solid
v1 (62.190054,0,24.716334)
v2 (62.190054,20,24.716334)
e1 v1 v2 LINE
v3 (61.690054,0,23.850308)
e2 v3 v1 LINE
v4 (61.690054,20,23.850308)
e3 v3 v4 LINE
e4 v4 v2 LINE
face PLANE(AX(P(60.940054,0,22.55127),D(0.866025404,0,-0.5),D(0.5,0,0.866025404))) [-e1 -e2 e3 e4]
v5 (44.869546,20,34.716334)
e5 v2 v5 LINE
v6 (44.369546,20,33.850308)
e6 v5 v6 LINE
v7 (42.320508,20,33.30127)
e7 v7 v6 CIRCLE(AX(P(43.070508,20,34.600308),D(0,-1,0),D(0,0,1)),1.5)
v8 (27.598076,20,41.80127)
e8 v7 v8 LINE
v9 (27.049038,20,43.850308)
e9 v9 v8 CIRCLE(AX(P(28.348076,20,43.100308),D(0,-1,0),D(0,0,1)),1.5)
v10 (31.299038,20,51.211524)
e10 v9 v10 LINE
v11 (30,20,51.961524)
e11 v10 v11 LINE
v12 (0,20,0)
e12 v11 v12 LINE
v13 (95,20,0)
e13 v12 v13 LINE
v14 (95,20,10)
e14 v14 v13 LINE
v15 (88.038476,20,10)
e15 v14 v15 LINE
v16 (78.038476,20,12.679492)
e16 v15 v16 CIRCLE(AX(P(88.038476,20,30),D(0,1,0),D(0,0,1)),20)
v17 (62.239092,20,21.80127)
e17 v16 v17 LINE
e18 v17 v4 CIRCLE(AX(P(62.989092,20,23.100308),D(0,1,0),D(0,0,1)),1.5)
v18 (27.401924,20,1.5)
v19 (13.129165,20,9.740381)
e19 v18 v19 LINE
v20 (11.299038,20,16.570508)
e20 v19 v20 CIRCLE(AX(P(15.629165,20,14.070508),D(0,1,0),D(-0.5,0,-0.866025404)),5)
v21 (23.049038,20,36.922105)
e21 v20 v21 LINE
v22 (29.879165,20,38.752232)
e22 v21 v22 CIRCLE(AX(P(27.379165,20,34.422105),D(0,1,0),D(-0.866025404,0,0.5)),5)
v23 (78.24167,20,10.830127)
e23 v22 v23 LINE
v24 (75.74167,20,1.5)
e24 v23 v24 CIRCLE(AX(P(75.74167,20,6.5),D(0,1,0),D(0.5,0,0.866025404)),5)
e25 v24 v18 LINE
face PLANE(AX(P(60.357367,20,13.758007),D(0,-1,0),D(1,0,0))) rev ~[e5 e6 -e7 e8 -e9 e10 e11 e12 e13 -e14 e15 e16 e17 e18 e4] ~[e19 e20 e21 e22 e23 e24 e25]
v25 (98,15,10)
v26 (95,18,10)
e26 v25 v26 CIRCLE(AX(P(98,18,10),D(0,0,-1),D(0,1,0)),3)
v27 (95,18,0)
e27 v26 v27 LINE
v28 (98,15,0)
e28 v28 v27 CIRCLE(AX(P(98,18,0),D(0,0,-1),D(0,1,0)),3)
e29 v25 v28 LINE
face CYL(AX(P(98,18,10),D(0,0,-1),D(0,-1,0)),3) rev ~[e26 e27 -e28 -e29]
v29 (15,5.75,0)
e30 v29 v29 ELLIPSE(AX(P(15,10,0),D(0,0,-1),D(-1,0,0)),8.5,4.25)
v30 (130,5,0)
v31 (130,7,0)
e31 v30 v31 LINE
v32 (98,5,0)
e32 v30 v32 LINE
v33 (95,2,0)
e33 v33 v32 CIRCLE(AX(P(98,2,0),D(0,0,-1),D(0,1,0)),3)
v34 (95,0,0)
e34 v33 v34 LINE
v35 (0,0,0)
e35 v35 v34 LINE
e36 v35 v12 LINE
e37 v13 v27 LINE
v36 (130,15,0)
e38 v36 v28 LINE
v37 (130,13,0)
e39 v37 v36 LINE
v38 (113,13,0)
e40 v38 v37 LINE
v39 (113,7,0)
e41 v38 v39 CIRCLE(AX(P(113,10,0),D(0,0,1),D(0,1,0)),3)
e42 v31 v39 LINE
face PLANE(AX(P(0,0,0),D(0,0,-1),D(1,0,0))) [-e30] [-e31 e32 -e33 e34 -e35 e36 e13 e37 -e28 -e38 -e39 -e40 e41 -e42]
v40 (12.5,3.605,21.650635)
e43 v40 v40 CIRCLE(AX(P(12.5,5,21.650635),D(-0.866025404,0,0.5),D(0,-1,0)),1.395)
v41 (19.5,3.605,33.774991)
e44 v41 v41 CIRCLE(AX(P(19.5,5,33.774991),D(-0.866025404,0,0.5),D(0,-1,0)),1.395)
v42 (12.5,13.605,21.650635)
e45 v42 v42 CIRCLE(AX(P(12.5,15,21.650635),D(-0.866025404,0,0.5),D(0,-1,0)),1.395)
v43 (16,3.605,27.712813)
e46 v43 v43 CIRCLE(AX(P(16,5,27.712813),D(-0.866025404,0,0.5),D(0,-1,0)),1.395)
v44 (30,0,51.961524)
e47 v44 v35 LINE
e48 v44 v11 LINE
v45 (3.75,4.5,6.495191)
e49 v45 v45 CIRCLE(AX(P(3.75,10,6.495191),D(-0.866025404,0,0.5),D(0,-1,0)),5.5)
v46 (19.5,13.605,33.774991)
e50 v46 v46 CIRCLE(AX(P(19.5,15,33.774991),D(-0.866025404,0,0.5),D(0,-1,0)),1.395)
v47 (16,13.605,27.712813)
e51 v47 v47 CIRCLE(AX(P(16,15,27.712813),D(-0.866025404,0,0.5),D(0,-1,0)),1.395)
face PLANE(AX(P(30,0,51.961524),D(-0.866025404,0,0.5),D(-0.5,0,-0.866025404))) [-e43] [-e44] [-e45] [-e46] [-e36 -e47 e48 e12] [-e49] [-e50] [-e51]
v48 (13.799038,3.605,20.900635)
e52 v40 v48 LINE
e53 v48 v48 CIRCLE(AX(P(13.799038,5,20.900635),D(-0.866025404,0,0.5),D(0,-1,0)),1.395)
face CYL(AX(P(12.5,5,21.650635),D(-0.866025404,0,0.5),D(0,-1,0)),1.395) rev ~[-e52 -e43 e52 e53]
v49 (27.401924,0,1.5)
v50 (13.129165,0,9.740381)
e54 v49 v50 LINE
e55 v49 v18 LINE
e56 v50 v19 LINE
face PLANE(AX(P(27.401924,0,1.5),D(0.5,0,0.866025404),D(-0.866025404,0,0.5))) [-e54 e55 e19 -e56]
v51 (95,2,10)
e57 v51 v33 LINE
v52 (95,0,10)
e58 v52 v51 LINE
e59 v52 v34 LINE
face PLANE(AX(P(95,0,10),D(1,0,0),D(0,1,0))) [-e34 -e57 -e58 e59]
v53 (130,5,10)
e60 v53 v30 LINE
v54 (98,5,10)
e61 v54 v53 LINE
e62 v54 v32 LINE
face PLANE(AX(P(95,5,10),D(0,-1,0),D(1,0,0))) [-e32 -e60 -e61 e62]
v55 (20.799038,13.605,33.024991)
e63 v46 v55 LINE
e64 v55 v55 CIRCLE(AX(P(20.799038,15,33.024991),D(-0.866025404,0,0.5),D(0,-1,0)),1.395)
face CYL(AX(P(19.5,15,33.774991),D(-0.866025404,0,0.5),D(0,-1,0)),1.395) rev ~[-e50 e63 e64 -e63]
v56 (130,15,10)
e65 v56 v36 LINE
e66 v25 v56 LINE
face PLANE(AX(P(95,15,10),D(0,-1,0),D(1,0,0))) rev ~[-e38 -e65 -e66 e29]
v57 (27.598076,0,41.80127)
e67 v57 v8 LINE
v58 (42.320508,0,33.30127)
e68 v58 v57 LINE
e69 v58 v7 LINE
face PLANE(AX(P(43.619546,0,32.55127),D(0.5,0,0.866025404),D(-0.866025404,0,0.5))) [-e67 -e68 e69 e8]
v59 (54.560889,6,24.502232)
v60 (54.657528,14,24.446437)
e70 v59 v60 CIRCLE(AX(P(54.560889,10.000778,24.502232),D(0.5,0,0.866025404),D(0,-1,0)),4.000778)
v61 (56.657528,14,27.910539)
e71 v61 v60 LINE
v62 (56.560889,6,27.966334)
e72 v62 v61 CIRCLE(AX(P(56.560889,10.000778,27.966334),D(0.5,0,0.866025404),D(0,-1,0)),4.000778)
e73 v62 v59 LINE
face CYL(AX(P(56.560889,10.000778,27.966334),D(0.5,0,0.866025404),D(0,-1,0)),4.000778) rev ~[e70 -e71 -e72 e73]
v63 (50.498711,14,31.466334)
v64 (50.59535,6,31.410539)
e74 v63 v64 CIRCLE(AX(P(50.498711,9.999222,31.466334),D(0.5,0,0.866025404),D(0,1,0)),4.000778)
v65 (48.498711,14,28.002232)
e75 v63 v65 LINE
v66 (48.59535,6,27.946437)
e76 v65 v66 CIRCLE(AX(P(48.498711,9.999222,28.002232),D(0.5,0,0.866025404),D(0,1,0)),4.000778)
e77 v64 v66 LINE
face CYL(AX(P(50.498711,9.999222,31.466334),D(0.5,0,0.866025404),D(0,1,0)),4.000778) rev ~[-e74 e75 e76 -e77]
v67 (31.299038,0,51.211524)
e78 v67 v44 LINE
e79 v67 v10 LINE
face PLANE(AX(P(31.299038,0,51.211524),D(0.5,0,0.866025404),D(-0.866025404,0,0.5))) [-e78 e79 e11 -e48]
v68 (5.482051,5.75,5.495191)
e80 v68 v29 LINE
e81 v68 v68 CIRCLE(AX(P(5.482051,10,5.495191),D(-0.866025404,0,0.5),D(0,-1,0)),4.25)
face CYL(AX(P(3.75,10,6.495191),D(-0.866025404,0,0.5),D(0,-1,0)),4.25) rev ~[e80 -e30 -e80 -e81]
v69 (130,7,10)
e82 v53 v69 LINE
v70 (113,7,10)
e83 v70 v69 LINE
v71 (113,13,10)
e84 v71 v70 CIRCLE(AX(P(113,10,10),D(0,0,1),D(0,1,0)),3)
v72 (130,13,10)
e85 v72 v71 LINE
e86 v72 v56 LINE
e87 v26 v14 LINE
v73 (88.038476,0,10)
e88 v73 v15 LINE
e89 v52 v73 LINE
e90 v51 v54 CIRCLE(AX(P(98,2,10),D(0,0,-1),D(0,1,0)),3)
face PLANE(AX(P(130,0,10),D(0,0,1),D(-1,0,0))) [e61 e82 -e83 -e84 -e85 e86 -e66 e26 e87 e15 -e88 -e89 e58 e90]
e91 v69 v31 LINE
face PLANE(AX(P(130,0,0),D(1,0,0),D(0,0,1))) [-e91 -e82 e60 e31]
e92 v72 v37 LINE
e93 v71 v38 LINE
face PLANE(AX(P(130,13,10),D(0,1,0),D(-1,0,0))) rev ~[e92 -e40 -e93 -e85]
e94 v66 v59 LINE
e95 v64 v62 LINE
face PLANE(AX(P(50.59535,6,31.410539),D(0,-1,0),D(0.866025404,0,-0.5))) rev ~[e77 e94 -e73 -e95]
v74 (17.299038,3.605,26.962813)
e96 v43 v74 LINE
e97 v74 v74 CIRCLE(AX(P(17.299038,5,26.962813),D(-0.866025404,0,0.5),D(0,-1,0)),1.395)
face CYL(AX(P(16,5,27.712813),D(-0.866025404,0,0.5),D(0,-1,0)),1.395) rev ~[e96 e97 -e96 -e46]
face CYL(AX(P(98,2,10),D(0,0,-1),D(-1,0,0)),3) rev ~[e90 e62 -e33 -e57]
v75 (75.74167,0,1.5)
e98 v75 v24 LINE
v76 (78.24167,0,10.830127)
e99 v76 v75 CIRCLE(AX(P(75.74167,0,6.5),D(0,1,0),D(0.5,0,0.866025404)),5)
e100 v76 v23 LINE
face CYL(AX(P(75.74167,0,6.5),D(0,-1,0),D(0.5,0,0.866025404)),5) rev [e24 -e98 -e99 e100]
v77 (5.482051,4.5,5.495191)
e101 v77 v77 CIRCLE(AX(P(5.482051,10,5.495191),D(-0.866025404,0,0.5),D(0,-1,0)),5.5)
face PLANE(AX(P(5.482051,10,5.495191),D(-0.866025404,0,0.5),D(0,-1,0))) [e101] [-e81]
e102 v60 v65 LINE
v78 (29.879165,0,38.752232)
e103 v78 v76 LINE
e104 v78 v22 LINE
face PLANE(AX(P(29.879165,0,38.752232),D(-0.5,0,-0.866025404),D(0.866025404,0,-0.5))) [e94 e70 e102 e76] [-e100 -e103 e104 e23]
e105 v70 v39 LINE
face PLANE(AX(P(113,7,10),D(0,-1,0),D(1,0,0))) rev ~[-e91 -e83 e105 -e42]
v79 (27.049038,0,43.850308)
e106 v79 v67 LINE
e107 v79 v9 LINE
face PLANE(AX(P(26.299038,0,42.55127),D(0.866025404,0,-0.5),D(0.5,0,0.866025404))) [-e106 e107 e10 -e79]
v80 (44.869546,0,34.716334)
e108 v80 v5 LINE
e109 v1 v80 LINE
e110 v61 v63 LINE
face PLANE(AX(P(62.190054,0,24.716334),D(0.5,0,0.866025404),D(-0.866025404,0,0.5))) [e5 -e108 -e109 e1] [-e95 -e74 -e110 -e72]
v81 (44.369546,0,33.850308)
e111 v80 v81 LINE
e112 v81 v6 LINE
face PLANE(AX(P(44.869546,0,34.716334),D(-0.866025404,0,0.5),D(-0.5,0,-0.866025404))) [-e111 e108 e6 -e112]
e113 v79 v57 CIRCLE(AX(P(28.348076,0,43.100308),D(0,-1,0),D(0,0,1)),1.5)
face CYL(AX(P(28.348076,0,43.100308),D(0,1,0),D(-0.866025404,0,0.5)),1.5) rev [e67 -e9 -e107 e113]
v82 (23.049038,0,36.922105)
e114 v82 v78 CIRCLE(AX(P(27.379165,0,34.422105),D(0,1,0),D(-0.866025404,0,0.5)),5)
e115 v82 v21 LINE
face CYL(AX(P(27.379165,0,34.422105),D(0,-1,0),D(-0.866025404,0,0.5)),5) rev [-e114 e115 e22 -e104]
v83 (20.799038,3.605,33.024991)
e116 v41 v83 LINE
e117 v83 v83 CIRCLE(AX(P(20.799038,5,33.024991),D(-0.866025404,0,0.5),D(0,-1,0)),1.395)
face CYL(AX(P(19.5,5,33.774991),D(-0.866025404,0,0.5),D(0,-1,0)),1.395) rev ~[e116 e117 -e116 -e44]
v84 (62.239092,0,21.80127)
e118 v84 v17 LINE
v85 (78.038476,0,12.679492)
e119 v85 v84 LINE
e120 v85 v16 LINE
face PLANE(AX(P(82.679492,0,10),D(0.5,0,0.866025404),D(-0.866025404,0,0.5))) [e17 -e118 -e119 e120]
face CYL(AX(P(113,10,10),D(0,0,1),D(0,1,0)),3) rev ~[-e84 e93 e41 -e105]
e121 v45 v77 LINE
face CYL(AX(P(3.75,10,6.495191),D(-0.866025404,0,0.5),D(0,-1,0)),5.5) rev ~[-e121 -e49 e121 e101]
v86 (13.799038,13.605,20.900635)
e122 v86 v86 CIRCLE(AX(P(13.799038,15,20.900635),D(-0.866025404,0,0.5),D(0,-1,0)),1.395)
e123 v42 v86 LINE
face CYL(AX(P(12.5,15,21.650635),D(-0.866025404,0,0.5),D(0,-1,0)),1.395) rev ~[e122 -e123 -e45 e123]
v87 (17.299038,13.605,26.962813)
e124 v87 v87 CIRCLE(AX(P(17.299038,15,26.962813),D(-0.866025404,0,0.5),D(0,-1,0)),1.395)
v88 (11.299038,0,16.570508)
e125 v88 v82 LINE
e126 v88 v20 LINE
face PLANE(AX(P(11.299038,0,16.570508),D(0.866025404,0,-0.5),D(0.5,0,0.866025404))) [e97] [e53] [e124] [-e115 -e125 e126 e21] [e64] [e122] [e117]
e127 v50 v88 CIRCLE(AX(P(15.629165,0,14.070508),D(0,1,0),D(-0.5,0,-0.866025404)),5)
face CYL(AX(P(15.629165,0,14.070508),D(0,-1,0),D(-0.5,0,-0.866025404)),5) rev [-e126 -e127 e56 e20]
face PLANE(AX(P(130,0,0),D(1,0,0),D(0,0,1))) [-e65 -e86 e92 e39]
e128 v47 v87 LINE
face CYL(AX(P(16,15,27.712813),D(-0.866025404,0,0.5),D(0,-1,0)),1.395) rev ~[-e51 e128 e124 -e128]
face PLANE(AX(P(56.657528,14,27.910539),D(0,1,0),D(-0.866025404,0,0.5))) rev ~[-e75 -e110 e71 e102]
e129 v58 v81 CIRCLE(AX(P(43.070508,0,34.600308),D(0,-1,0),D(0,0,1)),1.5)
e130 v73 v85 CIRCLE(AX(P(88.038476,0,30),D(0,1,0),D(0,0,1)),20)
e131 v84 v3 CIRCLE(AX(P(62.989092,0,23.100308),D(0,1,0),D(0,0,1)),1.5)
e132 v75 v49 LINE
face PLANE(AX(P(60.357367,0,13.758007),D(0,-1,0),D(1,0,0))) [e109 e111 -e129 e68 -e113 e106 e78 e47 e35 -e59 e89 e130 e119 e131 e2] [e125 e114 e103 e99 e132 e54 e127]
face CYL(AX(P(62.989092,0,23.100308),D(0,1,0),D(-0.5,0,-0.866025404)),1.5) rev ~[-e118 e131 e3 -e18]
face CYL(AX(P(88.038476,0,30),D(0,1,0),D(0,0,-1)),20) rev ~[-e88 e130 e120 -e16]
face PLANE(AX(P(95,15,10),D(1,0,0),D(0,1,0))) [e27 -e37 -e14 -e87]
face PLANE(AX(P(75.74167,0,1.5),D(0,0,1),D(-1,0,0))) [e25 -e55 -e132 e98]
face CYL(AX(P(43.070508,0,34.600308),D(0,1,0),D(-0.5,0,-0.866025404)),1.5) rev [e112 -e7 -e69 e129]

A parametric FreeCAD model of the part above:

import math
import FreeCAD as App
import Part
import Sketcher
from FreeCAD import Vector
Q = App.Units.Quantity


def edges_at(feature, points):
    """Names of the edges that pass closest to the given points."""
    edges = feature.Shape.Edges
    near = lambda p: min(range(len(edges)), key=lambda i: edges[i].distToShape(Part.Vertex(*p))[0])
    return sorted({f"Edge{near(p) + 1}" for p in points})


def add_polygon(sketch, points):
    """Adds a closed chain of lines whose ends are joined by coincident constraints."""
    first, n = sketch.GeometryCount, len(points)
    for a, b in zip(points, points[1:] + points[:1]):
        sketch.addGeometry(Part.LineSegment(App.Vector(*a, 0), App.Vector(*b, 0)), False)
    for i in range(n):
        sketch.addConstraint(Sketcher.Constraint("Coincident", first + i, 2, first + (i + 1) % n, 1))

doc = App.newDocument("Part")
body = doc.addObject("PartDesign::Body", "Body")

# Sketch on XZ plane
sketch1 = doc.addObject("Sketcher::SketchObject", "Sketch")
body.addObject(sketch1)
sketch1.AttachmentSupport = (doc.XZ_Plane, [""])
sketch1.MapMode = "FlatFace"
add_polygon(sketch1, [(30, 52), (0, 0), (130, 0), (130, 10), (82.7, 10), (60.9, 22.6), (62.2, 24.7), (44.9, 34.7), (43.6, 32.6), (26.3, 42.6), (31.3, 51.2)])  # lines 0-10
sketch1.addGeometry(Part.ArcOfCircle(Part.Circle(Vector(75.7, 6.5, 0), Vector(0, 0, 1), 5), math.radians(-90), math.radians(60)), False)  # 11
sketch1.addGeometry(Part.LineSegment(Vector(75.7, 1.5, 0), Vector(27.4, 1.5, 0)), False)  # 12
sketch1.addGeometry(Part.LineSegment(Vector(27.4, 1.5, 0), Vector(13.1, 9.7, 0)), False)  # 13
sketch1.addGeometry(Part.ArcOfCircle(Part.Circle(Vector(15.6, 14.1, 0), Vector(0, 0, 1), 5), math.radians(150), math.radians(240)), False)  # 14
sketch1.addGeometry(Part.LineSegment(Vector(11.3, 16.6, 0), Vector(23, 36.9, 0)), False)  # 15
sketch1.addGeometry(Part.ArcOfCircle(Part.Circle(Vector(27.4, 34.4, 0), Vector(0, 0, 1), 5), math.radians(60), math.radians(150)), False)  # 16
sketch1.addGeometry(Part.LineSegment(Vector(29.9, 38.8, 0), Vector(78.2, 10.8, 0)), False)  # 17
sketch1.addConstraint([
    Sketcher.Constraint("Tangent", 11, 1, 12, 1),
    Sketcher.Constraint("Coincident", 12, 2, 13, 1),
    Sketcher.Constraint("Tangent", 13, 2, 14, 2),
    Sketcher.Constraint("Tangent", 14, 1, 15, 1),
    Sketcher.Constraint("Tangent", 15, 2, 16, 2),
    Sketcher.Constraint("Tangent", 16, 1, 17, 1),
    Sketcher.Constraint("Tangent", 17, 2, 11, 2),
    Sketcher.Constraint("Horizontal", 1),
    Sketcher.Constraint("Vertical", 2),
    Sketcher.Constraint("Horizontal", 3),
    Sketcher.Constraint("Horizontal", 12),
    Sketcher.Constraint("Coincident", 0, 2, -1, 1),
    Sketcher.Constraint("Equal", 11, 14),
    Sketcher.Constraint("Equal", 14, 16),
    Sketcher.Constraint("Perpendicular", 0, 4),
    Sketcher.Constraint("Perpendicular", 4, 5),
    Sketcher.Constraint("Perpendicular", 5, 6),
    Sketcher.Constraint("Perpendicular", 6, 7),
    Sketcher.Constraint("Perpendicular", 7, 8),
    Sketcher.Constraint("Perpendicular", 8, 9),
    Sketcher.Constraint("Perpendicular", 9, 10),
    Sketcher.Constraint("Parallel", 10, 13),
    Sketcher.Constraint("Perpendicular", 13, 15),
    Sketcher.Constraint("Perpendicular", 15, 17),
    Sketcher.Constraint("Equal", 5, 7),
    Sketcher.Constraint("Equal", 6, 8),
    Sketcher.Constraint("Radius", 11, 5.0),
    Sketcher.Constraint("DistanceX", 1, 1, 1, 2, 130.0),
    Sketcher.Constraint("DistanceY", 2, 1, 2, 2, 10.0),
    Sketcher.Constraint("Angle", 0, Q("-120 deg")),
    Sketcher.Constraint("Distance", 0, 60.0),
    Sketcher.Constraint("Distance", 6, 20.0),
    Sketcher.Constraint("Distance", 9, 10.0),
    Sketcher.Constraint("Distance", 5, 2.5),
    Sketcher.Constraint("Distance", 10, 1.5),
    Sketcher.Constraint("Distance", 15, 23.5),
    Sketcher.Constraint("DistanceY", -1, 1, 11, 3, 6.5),
    Sketcher.Constraint("DistanceX", 15, 2, 8, 2, 3.25),
    Sketcher.Constraint("Distance", 17, 55.84421),
])
pad1 = doc.addObject("PartDesign::Pad", "Pad")
body.addObject(pad1)
pad1.Profile = sketch1
pad1.Length = 20
pad1.Reversed = True
doc.recompute()

fillet = doc.addObject("PartDesign::Fillet", "Fillet")
body.addObject(fillet)
fillet.Base = (pad1, edges_at(pad1, [(60.94, 10, 22.551), (43.62, 10, 32.551), (26.299, 10, 42.551)]))
fillet.Radius = 1.5
doc.recompute()

fillet2 = doc.addObject("PartDesign::Fillet", "Fillet001")
body.addObject(fillet2)
fillet2.Base = (fillet, edges_at(fillet, [(82.679, 10, 10)]))
fillet2.Radius = 20

# Sketch on XY plane
sketch2 = doc.addObject("Sketcher::SketchObject", "Sketch001")
body.addObject(sketch2)
sketch2.AttachmentSupport = (doc.XY_Plane, [""])
sketch2.MapMode = "FlatFace"
sketch2.AttachmentOffset = App.Placement(Vector(0, 0, 10), App.Rotation())
add_polygon(sketch2, [(95, 5), (95, 0), (130, 0), (130, 5)])  # lines 0-3
add_polygon(sketch2, [(95, 20), (95, 15), (130, 15), (130, 20)])  # lines 4-7
sketch2.addGeometry(Part.LineSegment(Vector(113, 7, 0), Vector(130, 7, 0)), False)  # 8
sketch2.addGeometry(Part.LineSegment(Vector(130, 7, 0), Vector(130, 13, 0)), False)  # 9
sketch2.addGeometry(Part.LineSegment(Vector(130, 13, 0), Vector(113, 13, 0)), False)  # 10
sketch2.addGeometry(Part.ArcOfCircle(Part.Circle(Vector(113, 10, 0), Vector(0, 0, 1), 3), math.radians(90), math.radians(270)), False)  # 11
sketch2.addConstraint([
    Sketcher.Constraint("Coincident", 8, 2, 9, 1),
    Sketcher.Constraint("Coincident", 9, 2, 10, 1),
    Sketcher.Constraint("Tangent", 10, 2, 11, 1),
    Sketcher.Constraint("Tangent", 11, 2, 8, 1),
    Sketcher.Constraint("Vertical", 0),
    Sketcher.Constraint("Horizontal", 1),
    Sketcher.Constraint("Vertical", 2),
    Sketcher.Constraint("Horizontal", 3),
    Sketcher.Constraint("Vertical", 4),
    Sketcher.Constraint("Horizontal", 5),
    Sketcher.Constraint("Vertical", 6),
    Sketcher.Constraint("Horizontal", 7),
    Sketcher.Constraint("Horizontal", 8),
    Sketcher.Constraint("Vertical", 9),
    Sketcher.Constraint("Horizontal", 10),
    Sketcher.Constraint("PointOnObject", 0, 2, -1),
    Sketcher.Constraint("Vertical", 3, 2, 4, 2),
    Sketcher.Constraint("Vertical", 2, 2, 5, 2),
    Sketcher.Constraint("Vertical", 6, 2, 8, 2),
    Sketcher.Constraint("Equal", 2, 4),
    Sketcher.Constraint("Radius", 11, 3.0),
    Sketcher.Constraint("DistanceX", 1, 1, 1, 2, 35.0),
    Sketcher.Constraint("DistanceX", 8, 1, 8, 2, 17.0),
    Sketcher.Constraint("DistanceY", 0, 2, 0, 1, 5.0),
    Sketcher.Constraint("DistanceX", -1, 1, 11, 3, 113.0),
    Sketcher.Constraint("DistanceY", -1, 1, 11, 3, 10.0),
    Sketcher.Constraint("DistanceY", -1, 1, 4, 2, 15.0),
])
pocket1 = doc.addObject("PartDesign::Pocket", "Pocket")
body.addObject(pocket1)
pocket1.Profile = sketch2
pocket1.Type = "ThroughAll"
doc.recompute()

fillet3 = doc.addObject("PartDesign::Fillet", "Fillet002")
body.addObject(fillet3)
fillet3.Base = (pocket1, edges_at(pocket1, [(95, 5, 5), (95, 15, 5)]))
fillet3.Radius = 3

# Sketch on an angled plane
sketch3 = doc.addObject("Sketcher::SketchObject", "Sketch002")
body.addObject(sketch3)
sketch3.Placement = App.Placement(Vector(26.25, 0, 45.466334), App.Rotation(Vector(0.866025404, 0, -0.5), Vector(0, 1, 0), Vector(0.5, 0, 0.866025404), "ZXY"))
sketch3.addGeometry([
    Part.ArcOfCircle(Part.Circle(Vector(35, 10, 0), Vector(0, 0, 1), 4), math.radians(-90), math.radians(88)),
    Part.LineSegment(Vector(35.1, 14, 0), Vector(28, 14, 0)),
    Part.ArcOfCircle(Part.Circle(Vector(28, 10, 0), Vector(0, 0, 1), 4), math.radians(90), math.radians(272)),
    Part.LineSegment(Vector(28.1, 6, 0), Vector(35, 6, 0)),
], False)
sketch3.addConstraint([
    Sketcher.Constraint("Coincident", 0, 2, 1, 1),
    Sketcher.Constraint("Tangent", 1, 2, 2, 1),
    Sketcher.Constraint("Coincident", 2, 2, 3, 1),
    Sketcher.Constraint("Tangent", 3, 2, 0, 1),
    Sketcher.Constraint("Horizontal", 1),
    Sketcher.Constraint("Horizontal", 3),
    Sketcher.Constraint("Equal", 0, 2),
    Sketcher.Constraint("DistanceX", -1, 1, 0, 3, 35.0),
    Sketcher.Constraint("DistanceX", -1, 1, 2, 3, 28.0),
    Sketcher.Constraint("DistanceY", -1, 1, 0, 2, 14.0),
    Sketcher.Constraint("DistanceY", -1, 1, 2, 2, 6.0),
    Sketcher.Constraint("Radius", 0, 4.000778),
])
pocket2 = doc.addObject("PartDesign::Pocket", "Pocket001")
body.addObject(pocket2)
pocket2.Profile = sketch3
pocket2.Length = 4

# Sketch on an angled plane
sketch4 = doc.addObject("Sketcher::SketchObject", "Sketch003")
body.addObject(sketch4)
sketch4.Placement = App.Placement(Vector(0, 0, 0), App.Rotation(Vector(0, -1, 0), Vector(0.5, 0, 0.866025404), Vector(-0.866025404, 0, 0.5), "ZXY"))
sketch4.addGeometry([
    Part.Circle(Vector(-10, 7.5, 0), Vector(0, 0, 1), 5.5),
    Part.Circle(Vector(-10, 7.5, 0), Vector(0, 0, 1), 4.2),
], False)
sketch4.addConstraint([
    Sketcher.Constraint("Coincident", 1, 3, 0, 3),
    Sketcher.Constraint("Diameter", 0, 11.0),
    Sketcher.Constraint("Diameter", 1, 8.5),
    Sketcher.Constraint("DistanceX", 0, 3, -1, 1, 10.0),
    Sketcher.Constraint("DistanceY", -1, 1, 0, 3, 7.5),
])
pocket3 = doc.addObject("PartDesign::Pocket", "Pocket002")
body.addObject(pocket3)
pocket3.Profile = sketch4
pocket3.Length = 2

# Sketch on an angled plane
sketch5 = doc.addObject("Sketcher::SketchObject", "Sketch004")
body.addObject(sketch5)
sketch5.Placement = App.Placement(Vector(0, 0, 0), App.Rotation(Vector(0, -1, 0), Vector(0.5, 0, 0.866025404), Vector(-0.866025404, 0, 0.5), "ZXY"))
sketch5.addGeometry([
    Part.Circle(Vector(-15, 39, 0), Vector(0, 0, 1), 1.4),  # 0
    Part.Circle(Vector(-5, 39, 0), Vector(0, 0, 1), 1.4),  # 1
    Part.Circle(Vector(-5, 32, 0), Vector(0, 0, 1), 1.4),  # 2
    Part.Circle(Vector(-5, 25, 0), Vector(0, 0, 1), 1.4),  # 3
    Part.Circle(Vector(-15, 32, 0), Vector(0, 0, 1), 1.4),  # 4
    Part.Circle(Vector(-15, 25, 0), Vector(0, 0, 1), 1.4),  # 5
], False)
sketch5.addConstraint([
    Sketcher.Constraint("Equal", 0, 1),
    Sketcher.Constraint("Equal", 1, 2),
    Sketcher.Constraint("Equal", 2, 3),
    Sketcher.Constraint("Equal", 3, 4),
    Sketcher.Constraint("Equal", 4, 5),
    Sketcher.Constraint("Horizontal", 0, 3, 1, 3),
    Sketcher.Constraint("Horizontal", 2, 3, 4, 3),
    Sketcher.Constraint("Horizontal", 3, 3, 5, 3),
    Sketcher.Constraint("Vertical", 1, 3, 2, 3),
    Sketcher.Constraint("Vertical", 2, 3, 3, 3),
    Sketcher.Constraint("Vertical", 0, 3, 4, 3),
    Sketcher.Constraint("Vertical", 4, 3, 5, 3),
    Sketcher.Constraint("Diameter", 0, 2.79),
    Sketcher.Constraint("DistanceX", 0, 3, -1, 1, 15.0),
    Sketcher.Constraint("DistanceY", -1, 1, 0, 3, 39.0),
    Sketcher.Constraint("DistanceX", 1, 3, -1, 1, 5.0),
    Sketcher.Constraint("DistanceY", -1, 1, 2, 3, 32.0),
    Sketcher.Constraint("DistanceY", -1, 1, 3, 3, 25.0),
])
pocket4 = doc.addObject("PartDesign::Pocket", "Pocket003")
body.addObject(pocket4)
pocket4.Profile = sketch5
pocket4.Length = 1.5

# Sketch on an angled plane
sketch6 = doc.addObject("Sketcher::SketchObject", "Sketch005")
body.addObject(sketch6)
sketch6.Placement = App.Placement(Vector(0, 0, 0), App.Rotation(Vector(0, -1, 0), Vector(0.5, 0, 0.866025404), Vector(-0.866025404, 0, 0.5), "ZXY"))
sketch6.addGeometry(Part.Circle(Vector(-10, 7.5, 0), Vector(0, 0, 1), 4.2), False)
sketch6.addConstraint([
    Sketcher.Constraint("Diameter", 0, 8.5),
    Sketcher.Constraint("DistanceX", 0, 3, -1, 1, 10.0),
    Sketcher.Constraint("DistanceY", -1, 1, 0, 3, 7.5),
])
pocket5 = doc.addObject("PartDesign::Pocket", "Pocket004")
body.addObject(pocket5)
pocket5.Profile = sketch6
pocket5.Type = "ThroughAll"

doc.recompute()
